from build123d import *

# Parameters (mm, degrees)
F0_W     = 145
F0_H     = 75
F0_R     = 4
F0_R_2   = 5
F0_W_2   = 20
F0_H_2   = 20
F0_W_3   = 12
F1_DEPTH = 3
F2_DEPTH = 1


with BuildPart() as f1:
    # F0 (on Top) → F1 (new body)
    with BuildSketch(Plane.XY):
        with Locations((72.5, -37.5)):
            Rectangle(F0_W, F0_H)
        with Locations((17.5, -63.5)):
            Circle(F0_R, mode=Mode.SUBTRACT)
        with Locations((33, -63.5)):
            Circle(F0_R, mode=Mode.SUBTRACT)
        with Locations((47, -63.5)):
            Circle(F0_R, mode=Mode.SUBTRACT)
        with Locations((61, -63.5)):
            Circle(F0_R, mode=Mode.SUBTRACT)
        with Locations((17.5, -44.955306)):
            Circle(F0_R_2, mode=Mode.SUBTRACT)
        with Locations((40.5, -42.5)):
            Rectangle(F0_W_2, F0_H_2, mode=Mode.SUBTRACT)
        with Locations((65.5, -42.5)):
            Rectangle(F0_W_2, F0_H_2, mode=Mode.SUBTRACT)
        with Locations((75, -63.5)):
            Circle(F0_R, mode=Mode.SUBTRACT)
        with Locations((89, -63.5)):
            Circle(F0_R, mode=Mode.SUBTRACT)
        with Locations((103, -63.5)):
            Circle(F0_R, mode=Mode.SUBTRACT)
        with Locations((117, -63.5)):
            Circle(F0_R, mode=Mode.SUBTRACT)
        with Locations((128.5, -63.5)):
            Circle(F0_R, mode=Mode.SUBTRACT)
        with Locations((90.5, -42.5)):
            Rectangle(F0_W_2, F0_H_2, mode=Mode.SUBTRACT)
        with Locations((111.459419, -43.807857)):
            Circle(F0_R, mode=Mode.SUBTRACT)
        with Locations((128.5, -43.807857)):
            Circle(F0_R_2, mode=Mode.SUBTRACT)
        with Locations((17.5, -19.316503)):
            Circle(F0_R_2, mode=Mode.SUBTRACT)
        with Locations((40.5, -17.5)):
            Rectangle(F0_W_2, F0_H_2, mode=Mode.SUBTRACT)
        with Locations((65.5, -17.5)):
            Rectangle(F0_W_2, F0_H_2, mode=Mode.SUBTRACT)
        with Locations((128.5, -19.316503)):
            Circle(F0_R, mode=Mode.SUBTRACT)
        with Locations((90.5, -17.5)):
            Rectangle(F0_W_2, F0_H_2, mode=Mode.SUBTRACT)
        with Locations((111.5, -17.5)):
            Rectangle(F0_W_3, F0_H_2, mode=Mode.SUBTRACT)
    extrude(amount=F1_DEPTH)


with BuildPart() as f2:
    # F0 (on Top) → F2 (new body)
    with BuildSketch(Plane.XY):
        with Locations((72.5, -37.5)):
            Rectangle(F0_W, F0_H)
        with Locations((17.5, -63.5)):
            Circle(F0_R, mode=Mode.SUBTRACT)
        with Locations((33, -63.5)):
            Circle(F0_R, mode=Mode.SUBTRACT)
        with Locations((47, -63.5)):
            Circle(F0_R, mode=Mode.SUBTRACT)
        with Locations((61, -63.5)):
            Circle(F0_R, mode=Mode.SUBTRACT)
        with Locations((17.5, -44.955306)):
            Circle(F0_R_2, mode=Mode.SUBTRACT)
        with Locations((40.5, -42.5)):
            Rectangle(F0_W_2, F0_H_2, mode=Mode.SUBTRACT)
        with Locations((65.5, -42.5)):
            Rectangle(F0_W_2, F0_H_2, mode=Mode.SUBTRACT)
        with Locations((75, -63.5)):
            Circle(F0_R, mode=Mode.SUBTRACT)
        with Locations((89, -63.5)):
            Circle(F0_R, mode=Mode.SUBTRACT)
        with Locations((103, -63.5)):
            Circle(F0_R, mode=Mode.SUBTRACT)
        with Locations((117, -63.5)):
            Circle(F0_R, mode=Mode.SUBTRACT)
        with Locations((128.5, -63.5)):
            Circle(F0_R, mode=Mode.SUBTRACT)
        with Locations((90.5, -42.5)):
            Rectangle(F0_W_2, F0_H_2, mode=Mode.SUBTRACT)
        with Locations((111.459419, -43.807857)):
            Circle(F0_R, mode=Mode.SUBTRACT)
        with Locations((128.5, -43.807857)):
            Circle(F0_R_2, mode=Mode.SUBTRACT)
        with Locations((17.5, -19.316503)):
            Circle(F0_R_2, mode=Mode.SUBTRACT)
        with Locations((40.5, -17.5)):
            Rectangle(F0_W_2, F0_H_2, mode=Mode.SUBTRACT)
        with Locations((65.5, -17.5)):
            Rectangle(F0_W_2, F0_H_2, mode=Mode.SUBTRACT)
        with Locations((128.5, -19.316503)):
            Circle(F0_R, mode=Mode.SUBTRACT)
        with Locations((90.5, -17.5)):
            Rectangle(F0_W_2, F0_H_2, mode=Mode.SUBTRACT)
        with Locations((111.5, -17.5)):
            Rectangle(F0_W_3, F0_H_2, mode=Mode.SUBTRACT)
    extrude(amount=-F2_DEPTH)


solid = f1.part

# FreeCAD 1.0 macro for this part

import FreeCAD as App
import Part
import Sketcher

V = App.Vector
Q = App.Units.Quantity


def add_polygon(sketch, points):
    """Adds a closed chain of lines whose ends are joined by coincident constraints."""
    first, n = sketch.GeometryCount, len(points)
    for a, b in zip(points, points[1:] + points[:1]):
        sketch.addGeometry(Part.LineSegment(App.Vector(*a, 0), App.Vector(*b, 0)), False)
    for i in range(n):
        sketch.addConstraint(Sketcher.Constraint("Coincident", first + i, 2, first + (i + 1) % n, 1))

doc = App.newDocument("Part")
params = doc.addObject("Spreadsheet::Sheet", "Params")
for row, (alias, value) in enumerate([
    ("sketch1_diameter", "8 mm"),
    ("sketch1_diameter2", "10 mm"),
    ("sketch1_width", "145 mm"),
    ("sketch1_width2", "20 mm"),
    ("sketch1_width3", "12 mm"),
    ("pad1_length", "3 mm"),
    ("sketch2_diameter", "8 mm"),
    ("sketch2_diameter2", "10 mm"),
    ("sketch2_width", "145 mm"),
    ("sketch2_width2", "20 mm"),
    ("sketch2_width3", "12 mm"),
    ("pad2_length", "1 mm"),
], start=1):
    params.set(f"A{row}", alias)
    params.set(f"B{row}", "=" + value)
    params.setAlias(f"B{row}", alias)

body = doc.addObject("PartDesign::Body", "Body")

# Sketch on XY plane
sketch1 = body.newObject("Sketcher::SketchObject", "Sketch")
sketch1.AttachmentSupport = (doc.getObject("XY_Plane"), [""])
sketch1.MapMode = "FlatFace"
add_polygon(sketch1, [(0, 0), (0, -75), (145, -75), (145, 0)])  # lines 0-3
sketch1.addGeometry(Part.Circle(V(17.5, -63.5, 0), V(0, 0, 1), 4), False)  # 4
sketch1.addGeometry(Part.Circle(V(33, -63.5, 0), V(0, 0, 1), 4), False)  # 5
sketch1.addGeometry(Part.Circle(V(47, -63.5, 0), V(0, 0, 1), 4), False)  # 6
sketch1.addGeometry(Part.Circle(V(61, -63.5, 0), V(0, 0, 1), 4), False)  # 7
sketch1.addGeometry(Part.Circle(V(17.5, -44.955306, 0), V(0, 0, 1), 5), False)  # 8
add_polygon(sketch1, [(50.5, -52.5), (30.5, -52.5), (30.5, -32.5), (50.5, -32.5)])  # lines 9-12
add_polygon(sketch1, [(75.5, -52.5), (55.5, -52.5), (55.5, -32.5), (75.5, -32.5)])  # lines 13-16
sketch1.addGeometry(Part.Circle(V(75, -63.5, 0), V(0, 0, 1), 4), False)  # 17
sketch1.addGeometry(Part.Circle(V(89, -63.5, 0), V(0, 0, 1), 4), False)  # 18
sketch1.addGeometry(Part.Circle(V(103, -63.5, 0), V(0, 0, 1), 4), False)  # 19
sketch1.addGeometry(Part.Circle(V(117, -63.5, 0), V(0, 0, 1), 4), False)  # 20
sketch1.addGeometry(Part.Circle(V(128.5, -63.5, 0), V(0, 0, 1), 4), False)  # 21
add_polygon(sketch1, [(100.5, -52.5), (80.5, -52.5), (80.5, -32.5), (100.5, -32.5)])  # lines 22-25
sketch1.addGeometry(Part.Circle(V(111.459419, -43.807857, 0), V(0, 0, 1), 4), False)  # 26
sketch1.addGeometry(Part.Circle(V(128.5, -43.807857, 0), V(0, 0, 1), 5), False)  # 27
sketch1.addGeometry(Part.Circle(V(17.5, -19.316503, 0), V(0, 0, 1), 5), False)  # 28
add_polygon(sketch1, [(50.5, -27.5), (30.5, -27.5), (30.5, -7.5), (50.5, -7.5)])  # lines 29-32
add_polygon(sketch1, [(75.5, -27.5), (55.5, -27.5), (55.5, -7.5), (75.5, -7.5)])  # lines 33-36
add_polygon(sketch1, [(100.5, -27.5), (80.5, -27.5), (80.5, -7.5), (100.5, -7.5)])  # lines 37-40
add_polygon(sketch1, [(117.5, -27.5), (105.5, -27.5), (105.5, -7.5), (117.5, -7.5)])  # lines 41-44
sketch1.addGeometry(Part.Circle(V(128.5, -19.316503, 0), V(0, 0, 1), 4), False)  # 45
sketch1.addConstraint([
    Sketcher.Constraint("Vertical", 0),
    Sketcher.Constraint("Horizontal", 1),
    Sketcher.Constraint("Vertical", 2),
    Sketcher.Constraint("Horizontal", 3),
    Sketcher.Constraint("Horizontal", 9),
    Sketcher.Constraint("Vertical", 10),
    Sketcher.Constraint("Horizontal", 11),
    Sketcher.Constraint("Vertical", 12),
    Sketcher.Constraint("Horizontal", 13),
    Sketcher.Constraint("Vertical", 14),
    Sketcher.Constraint("Horizontal", 15),
    Sketcher.Constraint("Vertical", 16),
    Sketcher.Constraint("Horizontal", 22),
    Sketcher.Constraint("Vertical", 23),
    Sketcher.Constraint("Horizontal", 24),
    Sketcher.Constraint("Vertical", 25),
    Sketcher.Constraint("Horizontal", 29),
    Sketcher.Constraint("Vertical", 30),
    Sketcher.Constraint("Horizontal", 31),
    Sketcher.Constraint("Vertical", 32),
    Sketcher.Constraint("Horizontal", 33),
    Sketcher.Constraint("Vertical", 34),
    Sketcher.Constraint("Horizontal", 35),
    Sketcher.Constraint("Vertical", 36),
    Sketcher.Constraint("Horizontal", 37),
    Sketcher.Constraint("Vertical", 38),
    Sketcher.Constraint("Horizontal", 39),
    Sketcher.Constraint("Vertical", 40),
    Sketcher.Constraint("Horizontal", 41),
    Sketcher.Constraint("Vertical", 42),
    Sketcher.Constraint("Horizontal", 43),
    Sketcher.Constraint("Vertical", 44),
    Sketcher.Constraint("Coincident", 3, 2, -1, 1),
    Sketcher.Constraint("Equal", 4, 5),
    Sketcher.Constraint("Equal", 5, 6),
    Sketcher.Constraint("Equal", 6, 7),
    Sketcher.Constraint("Equal", 7, 17),
    Sketcher.Constraint("Equal", 17, 18),
    Sketcher.Constraint("Equal", 18, 19),
    Sketcher.Constraint("Equal", 19, 20),
    Sketcher.Constraint("Equal", 20, 21),
    Sketcher.Constraint("Equal", 21, 26),
    Sketcher.Constraint("Equal", 8, 27),
    Sketcher.Constraint("Equal", 27, 28),
    Sketcher.Constraint("Equal", 26, 45),
    Sketcher.Constraint("Horizontal", 4, 3, 5, 3),
    Sketcher.Constraint("Horizontal", 5, 3, 6, 3),
    Sketcher.Constraint("Horizontal", 6, 3, 7, 3),
    Sketcher.Constraint("Horizontal", 7, 3, 17, 3),
    Sketcher.Constraint("Horizontal", 17, 3, 18, 3),
    Sketcher.Constraint("Horizontal", 18, 3, 19, 3),
    Sketcher.Constraint("Horizontal", 19, 3, 20, 3),
    Sketcher.Constraint("Horizontal", 20, 3, 21, 3),
    Sketcher.Constraint("Horizontal", 26, 3, 27, 3),
    Sketcher.Constraint("Horizontal", 28, 3, 45, 3),
    Sketcher.Constraint("Horizontal", 12, 2, 13, 2),
    Sketcher.Constraint("Horizontal", 11, 2, 14, 2),
    Sketcher.Constraint("Horizontal", 16, 2, 22, 2),
    Sketcher.Constraint("Horizontal", 15, 2, 23, 2),
    Sketcher.Constraint("Horizontal", 32, 2, 33, 2),
    Sketcher.Constraint("Horizontal", 31, 2, 34, 2),
    Sketcher.Constraint("Horizontal", 36, 2, 37, 2),
    Sketcher.Constraint("Horizontal", 35, 2, 38, 2),
    Sketcher.Constraint("Horizontal", 40, 2, 41, 2),
    Sketcher.Constraint("Horizontal", 39, 2, 42, 2),
    Sketcher.Constraint("Vertical", 4, 3, 8, 3),
    Sketcher.Constraint("Vertical", 21, 3, 27, 3),
    Sketcher.Constraint("Vertical", 8, 3, 28, 3),
    Sketcher.Constraint("Vertical", 27, 3, 45, 3),
    Sketcher.Constraint("Vertical", 10, 2, 29, 2),
    Sketcher.Constraint("Vertical", 12, 2, 31, 2),
    Sketcher.Constraint("Vertical", 14, 2, 33, 2),
    Sketcher.Constraint("Vertical", 16, 2, 35, 2),
    Sketcher.Constraint("Vertical", 23, 2, 37, 2),
    Sketcher.Constraint("Vertical", 25, 2, 39, 2),
    Sketcher.Constraint("Equal", 11, 13),
    Sketcher.Constraint("Equal", 15, 22),
    Sketcher.Constraint("Equal", 39, 10),
    Sketcher.Constraint("Equal", 25, 30),
    Sketcher.Constraint("Diameter", 4, Q("8 mm")),
    Sketcher.Constraint("Diameter", 8, Q("10 mm")),
    Sketcher.Constraint("DistanceX", 1, 1, 1, 2, Q("145 mm")),
    Sketcher.Constraint("DistanceX", 9, 2, 9, 1, Q("20 mm")),
    Sketcher.Constraint("DistanceX", 41, 2, 41, 1, Q("12 mm")),
    Sketcher.Constraint("DistanceY", 0, 2, 0, 1, Q("75 mm")),
    Sketcher.Constraint("DistanceX", -1, 1, 5, 3, Q("33 mm")),
    Sketcher.Constraint("DistanceX", -1, 1, 6, 3, Q("47 mm")),
    Sketcher.Constraint("DistanceX", -1, 1, 7, 3, Q("61 mm")),
    Sketcher.Constraint("DistanceX", -1, 1, 17, 3, Q("75 mm")),
    Sketcher.Constraint("DistanceX", -1, 1, 18, 3, Q("89 mm")),
    Sketcher.Constraint("DistanceX", -1, 1, 19, 3, Q("103 mm")),
    Sketcher.Constraint("DistanceX", -1, 1, 20, 3, Q("117 mm")),
    Sketcher.Constraint("DistanceY", 5, 3, 9, 2, Q("11 mm")),
    Sketcher.Constraint("DistanceX", 8, 3, 9, 2, Q("13 mm")),
    Sketcher.Constraint("DistanceX", 12, 2, 13, 2, Q("5 mm")),
    Sketcher.Constraint("DistanceX", 16, 2, 22, 2, Q("5 mm")),
    Sketcher.Constraint("DistanceX", 24, 2, 27, 3, Q("28 mm")),
    Sketcher.Constraint("DistanceY", 10, 2, 29, 2, Q("5 mm")),
    Sketcher.Constraint("DistanceX", 40, 2, 41, 2, Q("5 mm")),
    Sketcher.Constraint("DistanceX", -1, 1, 4, 3, Q("17.5 mm")),
    Sketcher.Constraint("DistanceY", 4, 3, -1, 1, Q("63.5 mm")),
    Sketcher.Constraint("DistanceX", -1, 1, 26, 3, Q("111.459419 mm")),
    Sketcher.Constraint("DistanceY", 8, 3, -1, 1, Q("44.955306 mm")),
    Sketcher.Constraint("DistanceY", 26, 3, -1, 1, Q("43.807857 mm")),
    Sketcher.Constraint("DistanceY", 28, 3, -1, 1, Q("19.316503 mm")),
])
sketch1.setExpression("Constraints[111]", "Params.sketch1_diameter")
sketch1.setExpression("Constraints[112]", "Params.sketch1_diameter2")
sketch1.setExpression("Constraints[113]", "Params.sketch1_width")
sketch1.setExpression("Constraints[114]", "Params.sketch1_width2")
sketch1.setExpression("Constraints[115]", "Params.sketch1_width3")
pad1 = body.newObject("PartDesign::Pad", "Pad")
pad1.Profile = sketch1
pad1.setExpression("Length", "Params.pad1_length")
body2 = doc.addObject("PartDesign::Body", "Body001")

# Sketch on XY plane
sketch2 = body2.newObject("Sketcher::SketchObject", "Sketch001")
sketch2.AttachmentSupport = (doc.getObject("XY_Plane001"), [""])
sketch2.MapMode = "FlatFace"
add_polygon(sketch2, [(0, 0), (0, -75), (145, -75), (145, 0)])  # lines 0-3
sketch2.addGeometry(Part.Circle(V(17.5, -63.5, 0), V(0, 0, 1), 4), False)  # 4
sketch2.addGeometry(Part.Circle(V(33, -63.5, 0), V(0, 0, 1), 4), False)  # 5
sketch2.addGeometry(Part.Circle(V(47, -63.5, 0), V(0, 0, 1), 4), False)  # 6
sketch2.addGeometry(Part.Circle(V(61, -63.5, 0), V(0, 0, 1), 4), False)  # 7
sketch2.addGeometry(Part.Circle(V(17.5, -44.955306, 0), V(0, 0, 1), 5), False)  # 8
add_polygon(sketch2, [(50.5, -52.5), (30.5, -52.5), (30.5, -32.5), (50.5, -32.5)])  # lines 9-12
add_polygon(sketch2, [(75.5, -52.5), (55.5, -52.5), (55.5, -32.5), (75.5, -32.5)])  # lines 13-16
sketch2.addGeometry(Part.Circle(V(75, -63.5, 0), V(0, 0, 1), 4), False)  # 17
sketch2.addGeometry(Part.Circle(V(89, -63.5, 0), V(0, 0, 1), 4), False)  # 18
sketch2.addGeometry(Part.Circle(V(103, -63.5, 0), V(0, 0, 1), 4), False)  # 19
sketch2.addGeometry(Part.Circle(V(117, -63.5, 0), V(0, 0, 1), 4), False)  # 20
sketch2.addGeometry(Part.Circle(V(128.5, -63.5, 0), V(0, 0, 1), 4), False)  # 21
add_polygon(sketch2, [(100.5, -52.5), (80.5, -52.5), (80.5, -32.5), (100.5, -32.5)])  # lines 22-25
sketch2.addGeometry(Part.Circle(V(111.459419, -43.807857, 0), V(0, 0, 1), 4), False)  # 26
sketch2.addGeometry(Part.Circle(V(128.5, -43.807857, 0), V(0, 0, 1), 5), False)  # 27
sketch2.addGeometry(Part.Circle(V(17.5, -19.316503, 0), V(0, 0, 1), 5), False)  # 28
add_polygon(sketch2, [(50.5, -27.5), (30.5, -27.5), (30.5, -7.5), (50.5, -7.5)])  # lines 29-32
add_polygon(sketch2, [(75.5, -27.5), (55.5, -27.5), (55.5, -7.5), (75.5, -7.5)])  # lines 33-36
add_polygon(sketch2, [(100.5, -27.5), (80.5, -27.5), (80.5, -7.5), (100.5, -7.5)])  # lines 37-40
add_polygon(sketch2, [(117.5, -27.5), (105.5, -27.5), (105.5, -7.5), (117.5, -7.5)])  # lines 41-44
sketch2.addGeometry(Part.Circle(V(128.5, -19.316503, 0), V(0, 0, 1), 4), False)  # 45
sketch2.addConstraint([
    Sketcher.Constraint("Vertical", 0),
    Sketcher.Constraint("Horizontal", 1),
    Sketcher.Constraint("Vertical", 2),
    Sketcher.Constraint("Horizontal", 3),
    Sketcher.Constraint("Horizontal", 9),
    Sketcher.Constraint("Vertical", 10),
    Sketcher.Constraint("Horizontal", 11),
    Sketcher.Constraint("Vertical", 12),
    Sketcher.Constraint("Horizontal", 13),
    Sketcher.Constraint("Vertical", 14),
    Sketcher.Constraint("Horizontal", 15),
    Sketcher.Constraint("Vertical", 16),
    Sketcher.Constraint("Horizontal", 22),
    Sketcher.Constraint("Vertical", 23),
    Sketcher.Constraint("Horizontal", 24),
    Sketcher.Constraint("Vertical", 25),
    Sketcher.Constraint("Horizontal", 29),
    Sketcher.Constraint("Vertical", 30),
    Sketcher.Constraint("Horizontal", 31),
    Sketcher.Constraint("Vertical", 32),
    Sketcher.Constraint("Horizontal", 33),
    Sketcher.Constraint("Vertical", 34),
    Sketcher.Constraint("Horizontal", 35),
    Sketcher.Constraint("Vertical", 36),
    Sketcher.Constraint("Horizontal", 37),
    Sketcher.Constraint("Vertical", 38),
    Sketcher.Constraint("Horizontal", 39),
    Sketcher.Constraint("Vertical", 40),
    Sketcher.Constraint("Horizontal", 41),
    Sketcher.Constraint("Vertical", 42),
    Sketcher.Constraint("Horizontal", 43),
    Sketcher.Constraint("Vertical", 44),
    Sketcher.Constraint("Coincident", 3, 2, -1, 1),
    Sketcher.Constraint("Equal", 4, 5),
    Sketcher.Constraint("Equal", 5, 6),
    Sketcher.Constraint("Equal", 6, 7),
    Sketcher.Constraint("Equal", 7, 17),
    Sketcher.Constraint("Equal", 17, 18),
    Sketcher.Constraint("Equal", 18, 19),
    Sketcher.Constraint("Equal", 19, 20),
    Sketcher.Constraint("Equal", 20, 21),
    Sketcher.Constraint("Equal", 21, 26),
    Sketcher.Constraint("Equal", 8, 27),
    Sketcher.Constraint("Equal", 27, 28),
    Sketcher.Constraint("Equal", 26, 45),
    Sketcher.Constraint("Horizontal", 4, 3, 5, 3),
    Sketcher.Constraint("Horizontal", 5, 3, 6, 3),
    Sketcher.Constraint("Horizontal", 6, 3, 7, 3),
    Sketcher.Constraint("Horizontal", 7, 3, 17, 3),
    Sketcher.Constraint("Horizontal", 17, 3, 18, 3),
    Sketcher.Constraint("Horizontal", 18, 3, 19, 3),
    Sketcher.Constraint("Horizontal", 19, 3, 20, 3),
    Sketcher.Constraint("Horizontal", 20, 3, 21, 3),
    Sketcher.Constraint("Horizontal", 26, 3, 27, 3),
    Sketcher.Constraint("Horizontal", 28, 3, 45, 3),
    Sketcher.Constraint("Horizontal", 12, 2, 13, 2),
    Sketcher.Constraint("Horizontal", 11, 2, 14, 2),
    Sketcher.Constraint("Horizontal", 16, 2, 22, 2),
    Sketcher.Constraint("Horizontal", 15, 2, 23, 2),
    Sketcher.Constraint("Horizontal", 32, 2, 33, 2),
    Sketcher.Constraint("Horizontal", 31, 2, 34, 2),
    Sketcher.Constraint("Horizontal", 36, 2, 37, 2),
    Sketcher.Constraint("Horizontal", 35, 2, 38, 2),
    Sketcher.Constraint("Horizontal", 40, 2, 41, 2),
    Sketcher.Constraint("Horizontal", 39, 2, 42, 2),
    Sketcher.Constraint("Vertical", 4, 3, 8, 3),
    Sketcher.Constraint("Vertical", 21, 3, 27, 3),
    Sketcher.Constraint("Vertical", 8, 3, 28, 3),
    Sketcher.Constraint("Vertical", 27, 3, 45, 3),
    Sketcher.Constraint("Vertical", 10, 2, 29, 2),
    Sketcher.Constraint("Vertical", 12, 2, 31, 2),
    Sketcher.Constraint("Vertical", 14, 2, 33, 2),
    Sketcher.Constraint("Vertical", 16, 2, 35, 2),
    Sketcher.Constraint("Vertical", 23, 2, 37, 2),
    Sketcher.Constraint("Vertical", 25, 2, 39, 2),
    Sketcher.Constraint("Equal", 11, 13),
    Sketcher.Constraint("Equal", 15, 22),
    Sketcher.Constraint("Equal", 39, 10),
    Sketcher.Constraint("Equal", 25, 30),
    Sketcher.Constraint("Diameter", 4, Q("8 mm")),
    Sketcher.Constraint("Diameter", 8, Q("10 mm")),
    Sketcher.Constraint("DistanceX", 1, 1, 1, 2, Q("145 mm")),
    Sketcher.Constraint("DistanceX", 9, 2, 9, 1, Q("20 mm")),
    Sketcher.Constraint("DistanceX", 41, 2, 41, 1, Q("12 mm")),
    Sketcher.Constraint("DistanceY", 0, 2, 0, 1, Q("75 mm")),
    Sketcher.Constraint("DistanceX", -1, 1, 5, 3, Q("33 mm")),
    Sketcher.Constraint("DistanceX", -1, 1, 6, 3, Q("47 mm")),
    Sketcher.Constraint("DistanceX", -1, 1, 7, 3, Q("61 mm")),
    Sketcher.Constraint("DistanceX", -1, 1, 17, 3, Q("75 mm")),
    Sketcher.Constraint("DistanceX", -1, 1, 18, 3, Q("89 mm")),
    Sketcher.Constraint("DistanceX", -1, 1, 19, 3, Q("103 mm")),
    Sketcher.Constraint("DistanceX", -1, 1, 20, 3, Q("117 mm")),
    Sketcher.Constraint("DistanceY", 5, 3, 9, 2, Q("11 mm")),
    Sketcher.Constraint("DistanceX", 8, 3, 9, 2, Q("13 mm")),
    Sketcher.Constraint("DistanceX", 12, 2, 13, 2, Q("5 mm")),
    Sketcher.Constraint("DistanceX", 16, 2, 22, 2, Q("5 mm")),
    Sketcher.Constraint("DistanceX", 24, 2, 27, 3, Q("28 mm")),
    Sketcher.Constraint("DistanceY", 10, 2, 29, 2, Q("5 mm")),
    Sketcher.Constraint("DistanceX", 40, 2, 41, 2, Q("5 mm")),
    Sketcher.Constraint("DistanceX", -1, 1, 4, 3, Q("17.5 mm")),
    Sketcher.Constraint("DistanceY", 4, 3, -1, 1, Q("63.5 mm")),
    Sketcher.Constraint("DistanceX", -1, 1, 26, 3, Q("111.459419 mm")),
    Sketcher.Constraint("DistanceY", 8, 3, -1, 1, Q("44.955306 mm")),
    Sketcher.Constraint("DistanceY", 26, 3, -1, 1, Q("43.807857 mm")),
    Sketcher.Constraint("DistanceY", 28, 3, -1, 1, Q("19.316503 mm")),
])
sketch2.setExpression("Constraints[111]", "Params.sketch2_diameter")
sketch2.setExpression("Constraints[112]", "Params.sketch2_diameter2")
sketch2.setExpression("Constraints[113]", "Params.sketch2_width")
sketch2.setExpression("Constraints[114]", "Params.sketch2_width2")
sketch2.setExpression("Constraints[115]", "Params.sketch2_width3")
pad2 = body2.newObject("PartDesign::Pad", "Pad001")
pad2.Profile = sketch2
pad2.setExpression("Length", "Params.pad2_length")
pad2.Reversed = True
body2.Visibility = False

doc.recompute()
